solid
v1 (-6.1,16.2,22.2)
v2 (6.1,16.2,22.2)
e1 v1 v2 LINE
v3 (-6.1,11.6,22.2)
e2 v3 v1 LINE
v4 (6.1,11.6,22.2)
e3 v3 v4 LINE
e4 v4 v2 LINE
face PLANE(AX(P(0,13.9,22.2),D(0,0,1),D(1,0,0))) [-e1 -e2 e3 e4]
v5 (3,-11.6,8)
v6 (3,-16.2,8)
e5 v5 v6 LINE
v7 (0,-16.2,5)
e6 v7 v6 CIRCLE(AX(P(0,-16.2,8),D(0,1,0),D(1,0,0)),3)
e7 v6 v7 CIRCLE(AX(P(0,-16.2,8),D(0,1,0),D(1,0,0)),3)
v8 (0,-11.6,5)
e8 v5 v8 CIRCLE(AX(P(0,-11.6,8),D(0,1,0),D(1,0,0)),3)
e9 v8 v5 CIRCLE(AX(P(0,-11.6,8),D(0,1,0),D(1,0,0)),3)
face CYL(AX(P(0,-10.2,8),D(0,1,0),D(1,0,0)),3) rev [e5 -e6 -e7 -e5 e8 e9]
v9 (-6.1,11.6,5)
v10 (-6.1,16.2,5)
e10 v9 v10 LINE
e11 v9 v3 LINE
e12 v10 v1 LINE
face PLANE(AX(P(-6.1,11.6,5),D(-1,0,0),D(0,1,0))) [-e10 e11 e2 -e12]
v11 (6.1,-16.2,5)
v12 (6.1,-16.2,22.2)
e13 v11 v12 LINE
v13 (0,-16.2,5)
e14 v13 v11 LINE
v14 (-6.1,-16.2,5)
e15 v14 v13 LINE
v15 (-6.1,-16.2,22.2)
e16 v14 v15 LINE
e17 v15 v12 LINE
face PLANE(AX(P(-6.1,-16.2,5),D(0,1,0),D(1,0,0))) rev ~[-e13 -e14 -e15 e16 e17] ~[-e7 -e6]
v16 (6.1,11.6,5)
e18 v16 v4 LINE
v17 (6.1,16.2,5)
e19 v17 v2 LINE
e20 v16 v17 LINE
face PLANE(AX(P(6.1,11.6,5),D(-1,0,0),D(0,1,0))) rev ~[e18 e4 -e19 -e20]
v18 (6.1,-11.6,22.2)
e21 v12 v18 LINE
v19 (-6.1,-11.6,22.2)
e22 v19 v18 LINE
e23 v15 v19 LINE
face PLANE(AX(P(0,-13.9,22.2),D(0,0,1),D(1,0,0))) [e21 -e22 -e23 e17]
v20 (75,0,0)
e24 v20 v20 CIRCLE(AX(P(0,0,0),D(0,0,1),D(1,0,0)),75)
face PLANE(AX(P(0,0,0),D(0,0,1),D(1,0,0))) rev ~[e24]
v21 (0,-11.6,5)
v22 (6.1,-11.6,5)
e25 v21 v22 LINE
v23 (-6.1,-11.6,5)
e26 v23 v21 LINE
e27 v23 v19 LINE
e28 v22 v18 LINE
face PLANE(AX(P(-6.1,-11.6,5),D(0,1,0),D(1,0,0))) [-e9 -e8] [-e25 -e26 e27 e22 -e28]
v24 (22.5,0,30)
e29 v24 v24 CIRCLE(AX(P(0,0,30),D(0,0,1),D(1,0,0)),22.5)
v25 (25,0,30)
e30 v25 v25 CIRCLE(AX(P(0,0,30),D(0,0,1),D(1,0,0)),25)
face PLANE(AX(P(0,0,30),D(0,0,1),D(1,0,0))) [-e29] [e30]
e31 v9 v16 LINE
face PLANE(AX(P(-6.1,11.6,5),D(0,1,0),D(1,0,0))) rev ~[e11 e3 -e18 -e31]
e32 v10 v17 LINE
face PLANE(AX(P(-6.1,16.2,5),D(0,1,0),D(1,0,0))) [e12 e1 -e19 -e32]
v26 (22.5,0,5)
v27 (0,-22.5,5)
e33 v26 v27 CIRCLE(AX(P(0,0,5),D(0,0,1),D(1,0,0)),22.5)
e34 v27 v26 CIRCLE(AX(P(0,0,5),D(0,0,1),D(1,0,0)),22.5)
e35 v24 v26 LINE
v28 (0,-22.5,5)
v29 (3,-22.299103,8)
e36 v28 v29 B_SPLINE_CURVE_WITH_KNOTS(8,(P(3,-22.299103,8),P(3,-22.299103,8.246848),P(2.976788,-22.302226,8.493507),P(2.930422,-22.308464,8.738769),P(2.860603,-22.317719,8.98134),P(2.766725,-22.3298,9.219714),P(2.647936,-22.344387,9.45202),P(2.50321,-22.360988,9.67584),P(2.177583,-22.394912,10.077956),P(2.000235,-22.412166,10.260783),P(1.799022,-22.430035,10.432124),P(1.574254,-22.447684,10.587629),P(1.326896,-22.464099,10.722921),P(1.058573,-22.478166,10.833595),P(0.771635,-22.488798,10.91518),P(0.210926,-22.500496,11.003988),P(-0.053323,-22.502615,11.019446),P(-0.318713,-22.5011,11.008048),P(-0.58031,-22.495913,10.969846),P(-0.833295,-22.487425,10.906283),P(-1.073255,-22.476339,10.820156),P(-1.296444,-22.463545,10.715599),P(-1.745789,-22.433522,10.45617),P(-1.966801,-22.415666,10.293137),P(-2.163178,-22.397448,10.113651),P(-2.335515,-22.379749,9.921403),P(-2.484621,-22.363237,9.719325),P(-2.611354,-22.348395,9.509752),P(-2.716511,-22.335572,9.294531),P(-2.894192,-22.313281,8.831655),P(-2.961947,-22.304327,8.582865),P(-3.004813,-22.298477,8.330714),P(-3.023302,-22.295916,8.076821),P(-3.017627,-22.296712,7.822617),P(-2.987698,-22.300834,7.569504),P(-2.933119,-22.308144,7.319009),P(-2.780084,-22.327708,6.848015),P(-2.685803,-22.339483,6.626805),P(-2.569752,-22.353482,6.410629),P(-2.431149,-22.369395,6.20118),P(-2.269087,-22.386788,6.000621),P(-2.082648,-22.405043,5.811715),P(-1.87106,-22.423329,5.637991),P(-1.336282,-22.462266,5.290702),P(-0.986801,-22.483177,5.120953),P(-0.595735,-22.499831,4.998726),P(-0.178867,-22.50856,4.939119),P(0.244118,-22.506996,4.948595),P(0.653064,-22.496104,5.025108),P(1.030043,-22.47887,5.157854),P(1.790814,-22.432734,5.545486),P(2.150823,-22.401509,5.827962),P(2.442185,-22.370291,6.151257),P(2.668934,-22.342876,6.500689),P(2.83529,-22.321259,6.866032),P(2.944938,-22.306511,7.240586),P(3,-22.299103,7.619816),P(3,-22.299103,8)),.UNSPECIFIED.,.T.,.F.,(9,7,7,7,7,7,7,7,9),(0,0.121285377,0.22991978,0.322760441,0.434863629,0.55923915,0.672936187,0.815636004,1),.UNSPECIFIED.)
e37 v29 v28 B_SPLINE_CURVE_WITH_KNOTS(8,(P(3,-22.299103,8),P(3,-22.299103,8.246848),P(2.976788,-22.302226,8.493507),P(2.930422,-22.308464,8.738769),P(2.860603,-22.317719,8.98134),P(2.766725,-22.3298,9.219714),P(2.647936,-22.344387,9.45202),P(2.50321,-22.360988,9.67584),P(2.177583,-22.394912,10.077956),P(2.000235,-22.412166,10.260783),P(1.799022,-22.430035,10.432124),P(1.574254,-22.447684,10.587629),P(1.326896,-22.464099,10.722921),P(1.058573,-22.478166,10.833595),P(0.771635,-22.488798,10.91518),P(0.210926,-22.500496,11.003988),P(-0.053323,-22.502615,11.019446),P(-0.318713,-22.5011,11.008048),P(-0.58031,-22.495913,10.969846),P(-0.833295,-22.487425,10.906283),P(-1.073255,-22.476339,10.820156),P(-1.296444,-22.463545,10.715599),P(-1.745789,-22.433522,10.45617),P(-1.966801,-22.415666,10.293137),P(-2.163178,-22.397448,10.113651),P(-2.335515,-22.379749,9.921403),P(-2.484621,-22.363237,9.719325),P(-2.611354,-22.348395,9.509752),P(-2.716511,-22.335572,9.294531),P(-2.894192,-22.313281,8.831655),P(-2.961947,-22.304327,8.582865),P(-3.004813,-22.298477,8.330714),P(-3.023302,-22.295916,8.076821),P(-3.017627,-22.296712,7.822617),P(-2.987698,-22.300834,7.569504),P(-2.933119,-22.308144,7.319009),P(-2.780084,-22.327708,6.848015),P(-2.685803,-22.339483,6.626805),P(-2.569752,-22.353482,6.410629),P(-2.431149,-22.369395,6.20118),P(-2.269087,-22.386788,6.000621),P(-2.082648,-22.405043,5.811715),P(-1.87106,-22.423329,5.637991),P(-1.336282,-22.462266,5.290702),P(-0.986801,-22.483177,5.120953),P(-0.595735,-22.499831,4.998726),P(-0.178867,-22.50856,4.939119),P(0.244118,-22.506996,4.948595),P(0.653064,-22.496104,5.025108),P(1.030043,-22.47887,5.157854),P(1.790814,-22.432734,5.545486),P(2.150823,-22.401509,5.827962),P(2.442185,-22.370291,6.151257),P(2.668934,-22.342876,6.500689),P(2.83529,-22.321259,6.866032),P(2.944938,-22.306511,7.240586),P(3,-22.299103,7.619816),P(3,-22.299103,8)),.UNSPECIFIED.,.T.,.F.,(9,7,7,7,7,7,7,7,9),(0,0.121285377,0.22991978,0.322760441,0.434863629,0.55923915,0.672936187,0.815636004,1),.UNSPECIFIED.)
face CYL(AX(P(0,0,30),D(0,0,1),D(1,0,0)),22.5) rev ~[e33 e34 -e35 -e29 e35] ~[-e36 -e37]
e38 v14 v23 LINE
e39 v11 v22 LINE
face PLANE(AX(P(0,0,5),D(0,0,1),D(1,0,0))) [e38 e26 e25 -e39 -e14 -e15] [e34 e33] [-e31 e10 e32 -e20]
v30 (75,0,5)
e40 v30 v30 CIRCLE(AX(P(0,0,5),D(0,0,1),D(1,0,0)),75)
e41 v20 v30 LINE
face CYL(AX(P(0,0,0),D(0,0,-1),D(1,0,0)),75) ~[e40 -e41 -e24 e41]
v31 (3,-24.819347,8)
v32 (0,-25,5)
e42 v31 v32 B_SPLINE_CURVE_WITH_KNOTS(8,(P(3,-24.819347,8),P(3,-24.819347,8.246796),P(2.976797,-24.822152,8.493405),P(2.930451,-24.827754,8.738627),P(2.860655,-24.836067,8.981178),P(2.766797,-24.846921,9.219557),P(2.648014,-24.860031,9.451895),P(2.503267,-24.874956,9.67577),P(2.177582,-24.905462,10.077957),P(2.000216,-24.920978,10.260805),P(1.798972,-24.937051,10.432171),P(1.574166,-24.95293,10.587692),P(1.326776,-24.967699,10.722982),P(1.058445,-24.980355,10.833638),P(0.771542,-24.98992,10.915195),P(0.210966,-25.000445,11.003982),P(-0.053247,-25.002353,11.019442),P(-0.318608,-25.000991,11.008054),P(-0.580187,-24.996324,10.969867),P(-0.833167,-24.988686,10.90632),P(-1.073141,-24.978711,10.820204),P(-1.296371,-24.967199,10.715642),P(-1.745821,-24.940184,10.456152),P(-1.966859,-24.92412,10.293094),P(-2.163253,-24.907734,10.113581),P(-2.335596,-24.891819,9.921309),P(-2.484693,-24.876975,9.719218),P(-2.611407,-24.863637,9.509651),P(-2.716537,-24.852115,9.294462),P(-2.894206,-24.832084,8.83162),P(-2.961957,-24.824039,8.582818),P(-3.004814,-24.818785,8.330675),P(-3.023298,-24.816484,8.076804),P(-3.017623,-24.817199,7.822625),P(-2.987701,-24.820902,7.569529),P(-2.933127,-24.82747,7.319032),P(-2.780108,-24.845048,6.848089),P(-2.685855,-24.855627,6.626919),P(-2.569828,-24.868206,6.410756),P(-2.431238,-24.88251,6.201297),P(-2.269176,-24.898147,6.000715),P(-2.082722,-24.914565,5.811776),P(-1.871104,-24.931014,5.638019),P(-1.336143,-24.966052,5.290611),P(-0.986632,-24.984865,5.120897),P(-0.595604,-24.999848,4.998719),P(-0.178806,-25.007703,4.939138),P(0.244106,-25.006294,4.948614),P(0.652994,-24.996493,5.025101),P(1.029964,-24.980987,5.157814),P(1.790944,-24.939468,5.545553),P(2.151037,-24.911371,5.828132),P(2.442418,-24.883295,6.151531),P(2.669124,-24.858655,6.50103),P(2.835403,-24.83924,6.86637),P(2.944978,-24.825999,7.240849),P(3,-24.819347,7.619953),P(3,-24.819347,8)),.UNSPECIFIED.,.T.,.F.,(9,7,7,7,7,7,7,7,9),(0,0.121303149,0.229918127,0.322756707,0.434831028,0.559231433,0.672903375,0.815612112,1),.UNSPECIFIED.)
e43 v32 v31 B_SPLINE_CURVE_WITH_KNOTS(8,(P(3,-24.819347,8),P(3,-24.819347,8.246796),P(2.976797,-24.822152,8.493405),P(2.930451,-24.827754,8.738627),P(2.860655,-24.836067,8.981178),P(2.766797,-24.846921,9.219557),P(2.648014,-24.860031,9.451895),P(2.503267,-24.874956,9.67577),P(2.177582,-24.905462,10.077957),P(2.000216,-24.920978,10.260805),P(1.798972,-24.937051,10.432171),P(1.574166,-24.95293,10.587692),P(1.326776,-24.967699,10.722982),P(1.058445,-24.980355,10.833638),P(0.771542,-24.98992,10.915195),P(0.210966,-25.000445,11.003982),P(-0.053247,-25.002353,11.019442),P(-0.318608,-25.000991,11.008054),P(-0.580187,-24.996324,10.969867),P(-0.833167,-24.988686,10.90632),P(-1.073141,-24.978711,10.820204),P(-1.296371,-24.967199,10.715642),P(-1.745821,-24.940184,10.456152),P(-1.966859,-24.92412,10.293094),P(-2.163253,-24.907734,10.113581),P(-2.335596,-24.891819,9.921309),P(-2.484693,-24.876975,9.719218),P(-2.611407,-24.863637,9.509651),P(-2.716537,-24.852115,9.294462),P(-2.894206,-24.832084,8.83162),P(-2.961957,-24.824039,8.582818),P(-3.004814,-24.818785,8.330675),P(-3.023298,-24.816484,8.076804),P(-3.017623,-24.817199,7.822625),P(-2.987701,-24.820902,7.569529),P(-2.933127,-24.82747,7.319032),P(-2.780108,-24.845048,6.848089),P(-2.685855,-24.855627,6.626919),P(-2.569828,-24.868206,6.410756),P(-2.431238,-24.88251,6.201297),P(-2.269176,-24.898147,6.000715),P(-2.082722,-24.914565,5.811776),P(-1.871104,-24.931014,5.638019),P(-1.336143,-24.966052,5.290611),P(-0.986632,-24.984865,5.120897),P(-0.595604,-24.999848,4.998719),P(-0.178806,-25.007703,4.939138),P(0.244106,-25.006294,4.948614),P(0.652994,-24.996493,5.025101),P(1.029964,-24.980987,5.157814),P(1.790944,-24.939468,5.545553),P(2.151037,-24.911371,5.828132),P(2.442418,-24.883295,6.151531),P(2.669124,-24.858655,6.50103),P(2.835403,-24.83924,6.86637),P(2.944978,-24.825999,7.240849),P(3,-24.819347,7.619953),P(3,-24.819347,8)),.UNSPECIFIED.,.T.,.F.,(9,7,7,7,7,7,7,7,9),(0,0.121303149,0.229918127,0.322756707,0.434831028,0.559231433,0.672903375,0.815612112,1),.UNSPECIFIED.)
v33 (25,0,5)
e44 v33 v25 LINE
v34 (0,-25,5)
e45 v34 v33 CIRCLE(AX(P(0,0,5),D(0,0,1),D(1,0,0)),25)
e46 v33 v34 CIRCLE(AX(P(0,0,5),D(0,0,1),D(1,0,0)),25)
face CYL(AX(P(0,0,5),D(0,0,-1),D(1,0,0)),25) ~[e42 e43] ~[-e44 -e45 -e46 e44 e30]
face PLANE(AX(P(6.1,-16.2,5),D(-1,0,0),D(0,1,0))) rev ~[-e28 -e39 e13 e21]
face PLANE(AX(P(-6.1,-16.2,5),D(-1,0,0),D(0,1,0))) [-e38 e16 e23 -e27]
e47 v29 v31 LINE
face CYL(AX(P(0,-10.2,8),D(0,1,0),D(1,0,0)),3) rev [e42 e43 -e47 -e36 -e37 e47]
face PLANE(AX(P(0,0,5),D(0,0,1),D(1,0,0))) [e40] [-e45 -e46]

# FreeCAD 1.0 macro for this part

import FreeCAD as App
import Part
import Sketcher

doc = App.newDocument("Part")
body = doc.addObject("PartDesign::Body", "Body")

# Sketch on XY plane
sketch1 = doc.addObject("Sketcher::SketchObject", "Sketch")
body.addObject(sketch1)
sketch1.AttachmentSupport = (doc.XY_Plane, [""])
sketch1.MapMode = "FlatFace"
sketch1.addGeometry(Part.Circle(App.Vector(0, 0, 0), App.Vector(0, 0, 1), 75), False)
sketch1.addConstraint(Sketcher.Constraint("Coincident", 0, 3, -1, 1))
sketch1.addConstraint(Sketcher.Constraint("Diameter", 0, 150.0))
pad1 = doc.addObject("PartDesign::Pad", "Pad")
body.addObject(pad1)
pad1.Profile = sketch1
pad1.Length = 5

# Sketch on XY plane
sketch2 = doc.addObject("Sketcher::SketchObject", "Sketch001")
body.addObject(sketch2)
sketch2.AttachmentSupport = (doc.XY_Plane, [""])
sketch2.MapMode = "FlatFace"
sketch2.AttachmentOffset = App.Placement(App.Vector(0, 0, 5), App.Rotation())
sketch2.addGeometry(Part.Circle(App.Vector(0, 0, 0), App.Vector(0, 0, 1), 25), False)
sketch2.addConstraint(Sketcher.Constraint("Coincident", 0, 3, -1, 1))
sketch2.addConstraint(Sketcher.Constraint("Diameter", 0, 50.0))
pad2 = doc.addObject("PartDesign::Pad", "Pad001")
body.addObject(pad2)
pad2.Profile = sketch2
pad2.Length = 25

# Sketch on XY plane
sketch3 = doc.addObject("Sketcher::SketchObject", "Sketch002")
body.addObject(sketch3)
sketch3.AttachmentSupport = (doc.XY_Plane, [""])
sketch3.MapMode = "FlatFace"
sketch3.AttachmentOffset = App.Placement(App.Vector(0, 0, 30), App.Rotation())
sketch3.addGeometry(Part.Circle(App.Vector(0, 0, 0), App.Vector(0, 0, 1), 22), False)
sketch3.addConstraint(Sketcher.Constraint("Coincident", 0, 3, -1, 1))
sketch3.addConstraint(Sketcher.Constraint("Diameter", 0, 45.0))
pocket1 = doc.addObject("PartDesign::Pocket", "Pocket")
body.addObject(pocket1)
pocket1.Profile = sketch3
pocket1.Length = 25

# Sketch on XY plane
sketch4 = doc.addObject("Sketcher::SketchObject", "Sketch003")
body.addObject(sketch4)
sketch4.AttachmentSupport = (doc.XY_Plane, [""])
sketch4.MapMode = "FlatFace"
sketch4.AttachmentOffset = App.Placement(App.Vector(0, 0, 5), App.Rotation())
sketch4.addGeometry(Part.LineSegment(App.Vector(-6.1, 16.2, 0), App.Vector(-6.1, 11.6, 0)), False)
sketch4.addGeometry(Part.LineSegment(App.Vector(-6.1, 11.6, 0), App.Vector(6.1, 11.6, 0)), False)
sketch4.addGeometry(Part.LineSegment(App.Vector(6.1, 11.6, 0), App.Vector(6.1, 16.2, 0)), False)
sketch4.addGeometry(Part.LineSegment(App.Vector(6.1, 16.2, 0), App.Vector(-6.1, 16.2, 0)), False)
sketch4.addGeometry(Part.LineSegment(App.Vector(-6.1, -11.6, 0), App.Vector(-6.1, -16.2, 0)), False)
sketch4.addGeometry(Part.LineSegment(App.Vector(-6.1, -16.2, 0), App.Vector(6.1, -16.2, 0)), False)
sketch4.addGeometry(Part.LineSegment(App.Vector(6.1, -16.2, 0), App.Vector(6.1, -11.6, 0)), False)
sketch4.addGeometry(Part.LineSegment(App.Vector(6.1, -11.6, 0), App.Vector(-6.1, -11.6, 0)), False)
sketch4.addConstraint(Sketcher.Constraint("Coincident", 0, 2, 1, 1))
sketch4.addConstraint(Sketcher.Constraint("Coincident", 1, 2, 2, 1))
sketch4.addConstraint(Sketcher.Constraint("Coincident", 2, 2, 3, 1))
sketch4.addConstraint(Sketcher.Constraint("Coincident", 3, 2, 0, 1))
sketch4.addConstraint(Sketcher.Constraint("Coincident", 4, 2, 5, 1))
sketch4.addConstraint(Sketcher.Constraint("Coincident", 5, 2, 6, 1))
sketch4.addConstraint(Sketcher.Constraint("Coincident", 6, 2, 7, 1))
sketch4.addConstraint(Sketcher.Constraint("Coincident", 7, 2, 4, 1))
sketch4.addConstraint(Sketcher.Constraint("Vertical", 0))
sketch4.addConstraint(Sketcher.Constraint("Horizontal", 1))
sketch4.addConstraint(Sketcher.Constraint("Vertical", 2))
sketch4.addConstraint(Sketcher.Constraint("Horizontal", 3))
sketch4.addConstraint(Sketcher.Constraint("Vertical", 4))
sketch4.addConstraint(Sketcher.Constraint("Horizontal", 5))
sketch4.addConstraint(Sketcher.Constraint("Vertical", 6))
sketch4.addConstraint(Sketcher.Constraint("Horizontal", 7))
sketch4.addConstraint(Sketcher.Constraint("Symmetric", 2, 2, 4, 2, -1, 1))
sketch4.addConstraint(Sketcher.Constraint("Symmetric", 0, 2, 6, 2, -1, 1))
sketch4.addConstraint(Sketcher.Constraint("Vertical", 3, 2, 4, 2))
sketch4.addConstraint(Sketcher.Constraint("DistanceX", 1, 1, 1, 2, 12.2))
sketch4.addConstraint(Sketcher.Constraint("DistanceY", 0, 2, 0, 1, 4.6))
sketch4.addConstraint(Sketcher.Constraint("DistanceY", -1, 1, 0, 2, 11.6))
pad3 = doc.addObject("PartDesign::Pad", "Pad002")
body.addObject(pad3)
pad3.Profile = sketch4
pad3.Length = 17.2

# Sketch on XZ plane
sketch5 = doc.addObject("Sketcher::SketchObject", "Sketch004")
body.addObject(sketch5)
sketch5.AttachmentSupport = (doc.XZ_Plane, [""])
sketch5.MapMode = "FlatFace"
sketch5.AttachmentOffset = App.Placement(App.Vector(0, 0, 10.2), App.Rotation())
sketch5.addGeometry(Part.Circle(App.Vector(0, 8, 0), App.Vector(0, 0, 1), 3), False)
sketch5.addConstraint(Sketcher.Constraint("PointOnObject", 0, 3, -2))
sketch5.addConstraint(Sketcher.Constraint("Diameter", 0, 6.0))
sketch5.addConstraint(Sketcher.Constraint("DistanceY", -1, 1, 0, 3, 8.0))
pocket2 = doc.addObject("PartDesign::Pocket", "Pocket001")
body.addObject(pocket2)
pocket2.Profile = sketch5
pocket2.Length = 16
pocket2.Reversed = True

doc.recompute()
